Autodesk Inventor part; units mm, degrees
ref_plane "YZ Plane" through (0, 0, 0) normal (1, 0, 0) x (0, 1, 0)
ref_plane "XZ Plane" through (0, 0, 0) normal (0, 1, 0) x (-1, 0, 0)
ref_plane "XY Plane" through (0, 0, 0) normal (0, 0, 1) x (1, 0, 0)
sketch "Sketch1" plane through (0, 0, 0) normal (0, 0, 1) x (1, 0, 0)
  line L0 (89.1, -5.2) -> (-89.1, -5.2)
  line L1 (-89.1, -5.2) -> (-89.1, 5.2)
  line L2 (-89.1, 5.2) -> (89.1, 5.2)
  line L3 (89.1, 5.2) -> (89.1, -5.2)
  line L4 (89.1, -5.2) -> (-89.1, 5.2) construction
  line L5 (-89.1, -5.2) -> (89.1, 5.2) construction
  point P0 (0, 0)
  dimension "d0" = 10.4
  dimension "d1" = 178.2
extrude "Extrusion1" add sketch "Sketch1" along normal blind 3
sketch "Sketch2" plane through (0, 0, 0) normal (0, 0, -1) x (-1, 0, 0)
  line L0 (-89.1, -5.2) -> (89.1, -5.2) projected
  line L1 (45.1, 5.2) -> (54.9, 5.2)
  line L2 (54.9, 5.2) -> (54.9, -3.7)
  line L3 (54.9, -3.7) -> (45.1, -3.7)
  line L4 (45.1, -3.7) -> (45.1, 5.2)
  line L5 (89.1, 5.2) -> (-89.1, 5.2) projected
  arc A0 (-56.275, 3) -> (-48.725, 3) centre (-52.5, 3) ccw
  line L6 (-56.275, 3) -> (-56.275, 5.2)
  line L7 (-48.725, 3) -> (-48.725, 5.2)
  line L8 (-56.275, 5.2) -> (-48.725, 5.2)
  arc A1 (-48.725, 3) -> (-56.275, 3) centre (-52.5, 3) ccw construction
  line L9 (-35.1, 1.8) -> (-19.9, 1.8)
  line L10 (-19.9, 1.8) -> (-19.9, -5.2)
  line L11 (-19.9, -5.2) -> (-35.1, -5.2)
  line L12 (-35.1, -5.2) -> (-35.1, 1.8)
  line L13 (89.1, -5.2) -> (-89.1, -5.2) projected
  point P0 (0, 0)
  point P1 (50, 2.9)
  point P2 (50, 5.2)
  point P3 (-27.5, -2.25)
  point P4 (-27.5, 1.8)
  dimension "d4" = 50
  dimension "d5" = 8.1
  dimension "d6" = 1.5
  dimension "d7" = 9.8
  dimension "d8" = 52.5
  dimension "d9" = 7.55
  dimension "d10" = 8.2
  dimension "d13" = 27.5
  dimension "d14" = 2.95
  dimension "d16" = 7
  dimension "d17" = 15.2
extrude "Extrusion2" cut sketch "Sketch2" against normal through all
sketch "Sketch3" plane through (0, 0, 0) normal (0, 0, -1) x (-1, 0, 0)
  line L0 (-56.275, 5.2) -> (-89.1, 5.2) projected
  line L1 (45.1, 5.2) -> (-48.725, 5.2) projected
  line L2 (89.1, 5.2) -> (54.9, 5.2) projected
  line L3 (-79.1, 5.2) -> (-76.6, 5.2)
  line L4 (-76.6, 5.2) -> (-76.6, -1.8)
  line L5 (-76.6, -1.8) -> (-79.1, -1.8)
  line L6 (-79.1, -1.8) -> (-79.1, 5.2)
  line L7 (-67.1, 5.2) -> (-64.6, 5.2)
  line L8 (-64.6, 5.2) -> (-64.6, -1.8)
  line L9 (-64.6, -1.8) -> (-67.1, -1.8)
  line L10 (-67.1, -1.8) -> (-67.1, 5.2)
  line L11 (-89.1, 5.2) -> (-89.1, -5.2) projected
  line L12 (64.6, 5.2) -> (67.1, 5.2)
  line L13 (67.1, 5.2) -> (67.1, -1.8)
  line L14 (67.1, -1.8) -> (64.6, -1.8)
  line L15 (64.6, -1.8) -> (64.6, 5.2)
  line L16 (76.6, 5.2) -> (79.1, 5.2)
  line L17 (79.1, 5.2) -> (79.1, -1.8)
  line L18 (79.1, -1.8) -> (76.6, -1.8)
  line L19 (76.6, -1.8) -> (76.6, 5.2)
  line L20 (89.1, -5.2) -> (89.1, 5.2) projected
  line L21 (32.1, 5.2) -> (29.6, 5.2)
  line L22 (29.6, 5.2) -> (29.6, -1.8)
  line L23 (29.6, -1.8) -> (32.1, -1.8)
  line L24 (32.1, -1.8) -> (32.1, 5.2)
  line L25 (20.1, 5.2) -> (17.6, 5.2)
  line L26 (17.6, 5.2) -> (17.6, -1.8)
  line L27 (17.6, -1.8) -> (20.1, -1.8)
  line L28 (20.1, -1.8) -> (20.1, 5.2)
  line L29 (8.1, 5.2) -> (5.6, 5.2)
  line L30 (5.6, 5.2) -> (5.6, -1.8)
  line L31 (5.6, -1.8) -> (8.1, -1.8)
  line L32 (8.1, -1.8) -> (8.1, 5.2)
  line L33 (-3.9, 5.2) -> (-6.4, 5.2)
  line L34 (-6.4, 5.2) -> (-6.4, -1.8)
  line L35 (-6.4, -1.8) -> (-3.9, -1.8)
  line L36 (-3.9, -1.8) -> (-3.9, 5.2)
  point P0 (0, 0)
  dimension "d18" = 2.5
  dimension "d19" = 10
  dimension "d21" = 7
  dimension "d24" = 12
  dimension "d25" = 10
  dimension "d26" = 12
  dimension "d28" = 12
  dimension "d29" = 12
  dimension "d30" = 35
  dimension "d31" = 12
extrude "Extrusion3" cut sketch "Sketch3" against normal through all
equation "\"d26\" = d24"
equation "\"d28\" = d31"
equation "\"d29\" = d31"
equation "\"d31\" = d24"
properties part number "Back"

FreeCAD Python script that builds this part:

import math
import FreeCAD as App
import Part
import Sketcher
Q = App.Units.Quantity

doc = App.newDocument("Part")
body = doc.addObject("PartDesign::Body", "Body")

sketch1 = doc.addObject("Sketcher::SketchObject", "Sketch")
body.addObject(sketch1)
sketch1.AttachmentSupport = (doc.XY_Plane, [""])
sketch1.MapMode = "FlatFace"
sketch1.addGeometry(Part.LineSegment(App.Vector(-89.1, -5.2, 0), App.Vector(89.1, -5.2, 0)), False)
sketch1.addGeometry(Part.LineSegment(App.Vector(89.1, -5.2, 0), App.Vector(89.1, 5.2, 0)), False)
sketch1.addGeometry(Part.LineSegment(App.Vector(89.1, 5.2, 0), App.Vector(-89.1, 5.2, 0)), False)
sketch1.addGeometry(Part.LineSegment(App.Vector(-89.1, 5.2, 0), App.Vector(-89.1, -5.2, 0)), False)
sketch1.addConstraint(Sketcher.Constraint("Coincident", 0, 2, 1, 1))
sketch1.addConstraint(Sketcher.Constraint("Coincident", 1, 2, 2, 1))
sketch1.addConstraint(Sketcher.Constraint("Coincident", 2, 2, 3, 1))
sketch1.addConstraint(Sketcher.Constraint("Coincident", 3, 2, 0, 1))
sketch1.addConstraint(Sketcher.Constraint("Horizontal", 0))
sketch1.addConstraint(Sketcher.Constraint("Vertical", 1))
sketch1.addConstraint(Sketcher.Constraint("Horizontal", 2))
sketch1.addConstraint(Sketcher.Constraint("Vertical", 3))
sketch1.addConstraint(Sketcher.Constraint("Symmetric", 0, 2, 2, 2, -1, 1))
sketch1.addConstraint(Sketcher.Constraint("DistanceX", 0, 1, 0, 2, Q("178.2 mm")))
sketch1.addConstraint(Sketcher.Constraint("DistanceY", 1, 1, 1, 2, Q("10.4 mm")))
pad1 = doc.addObject("PartDesign::Pad", "Pad")
body.addObject(pad1)
pad1.Profile = sketch1
pad1.Length = 3

sketch2 = doc.addObject("Sketcher::SketchObject", "Sketch001")
body.addObject(sketch2)
sketch2.AttachmentSupport = (doc.XY_Plane, [""])
sketch2.MapMode = "FlatFace"
sketch2.addGeometry(Part.LineSegment(App.Vector(35.1, 1.8, 0), App.Vector(35.1, -5.2, 0)), False)
sketch2.addGeometry(Part.LineSegment(App.Vector(35.1, -5.2, 0), App.Vector(19.9, -5.2, 0)), False)
sketch2.addGeometry(Part.LineSegment(App.Vector(19.9, -5.2, 0), App.Vector(19.9, 1.8, 0)), False)
sketch2.addGeometry(Part.LineSegment(App.Vector(19.9, 1.8, 0), App.Vector(35.1, 1.8, 0)), False)
sketch2.addGeometry(Part.LineSegment(App.Vector(-54.9, 5.2, 0), App.Vector(-45.1, 5.2, 0)), False)
sketch2.addGeometry(Part.LineSegment(App.Vector(-45.1, 5.2, 0), App.Vector(-45.1, -3.7, 0)), False)
sketch2.addGeometry(Part.LineSegment(App.Vector(-45.1, -3.7, 0), App.Vector(-54.9, -3.7, 0)), False)
sketch2.addGeometry(Part.LineSegment(App.Vector(-54.9, -3.7, 0), App.Vector(-54.9, 5.2, 0)), False)
sketch2.addGeometry(Part.LineSegment(App.Vector(48.725, 3, 0), App.Vector(48.725, 5.2, 0)), False)
sketch2.addGeometry(Part.LineSegment(App.Vector(48.725, 5.2, 0), App.Vector(56.275, 5.2, 0)), False)
sketch2.addGeometry(Part.LineSegment(App.Vector(56.275, 5.2, 0), App.Vector(56.275, 3, 0)), False)
sketch2.addGeometry(Part.ArcOfCircle(Part.Circle(App.Vector(52.5, 3, 0), App.Vector(0, 0, 1), 3.775), math.radians(180), math.radians(360)), False)
sketch2.addConstraint(Sketcher.Constraint("Coincident", 0, 2, 1, 1))
sketch2.addConstraint(Sketcher.Constraint("Coincident", 1, 2, 2, 1))
sketch2.addConstraint(Sketcher.Constraint("Coincident", 2, 2, 3, 1))
sketch2.addConstraint(Sketcher.Constraint("Coincident", 3, 2, 0, 1))
sketch2.addConstraint(Sketcher.Constraint("Coincident", 4, 2, 5, 1))
sketch2.addConstraint(Sketcher.Constraint("Coincident", 5, 2, 6, 1))
sketch2.addConstraint(Sketcher.Constraint("Coincident", 6, 2, 7, 1))
sketch2.addConstraint(Sketcher.Constraint("Coincident", 7, 2, 4, 1))
sketch2.addConstraint(Sketcher.Constraint("Coincident", 8, 2, 9, 1))
sketch2.addConstraint(Sketcher.Constraint("Coincident", 9, 2, 10, 1))
sketch2.addConstraint(Sketcher.Constraint("Tangent", 10, 2, 11, 2))
sketch2.addConstraint(Sketcher.Constraint("Tangent", 11, 1, 8, 1))
sketch2.addConstraint(Sketcher.Constraint("Vertical", 0))
sketch2.addConstraint(Sketcher.Constraint("Horizontal", 1))
sketch2.addConstraint(Sketcher.Constraint("Vertical", 2))
sketch2.addConstraint(Sketcher.Constraint("Horizontal", 3))
sketch2.addConstraint(Sketcher.Constraint("Horizontal", 4))
sketch2.addConstraint(Sketcher.Constraint("Vertical", 5))
sketch2.addConstraint(Sketcher.Constraint("Horizontal", 6))
sketch2.addConstraint(Sketcher.Constraint("Vertical", 7))
sketch2.addConstraint(Sketcher.Constraint("Vertical", 8))
sketch2.addConstraint(Sketcher.Constraint("Horizontal", 9))
sketch2.addConstraint(Sketcher.Constraint("Vertical", 10))
sketch2.addConstraint(Sketcher.Constraint("Horizontal", 7, 2, 8, 2))
sketch2.addConstraint(Sketcher.Constraint("DistanceY", 0, 2, 0, 1, Q("7 mm")))
sketch2.addConstraint(Sketcher.Constraint("DistanceX", 1, 2, 1, 1, Q("15.2 mm")))
sketch2.addConstraint(Sketcher.Constraint("DistanceX", 4, 1, 4, 2, Q("9.8 mm")))
sketch2.addConstraint(Sketcher.Constraint("Radius", 11, Q("3.775 mm")))
sketch2.addConstraint(Sketcher.Constraint("DistanceX", -1, 1, 11, 3, Q("52.5 mm")))
sketch2.addConstraint(Sketcher.Constraint("DistanceY", 0, 2, 11, 3, Q("8.2 mm")))
sketch2.addConstraint(Sketcher.Constraint("DistanceY", 1, 2, 5, 2, Q("1.5 mm")))
sketch2.addConstraint(Sketcher.Constraint("DistanceY", 5, 2, 5, 1, Q("8.9 mm")))
sketch2.addConstraint(Sketcher.Constraint("DistanceY", -1, 1, 11, 3, Q("3 mm")))
sketch2.addConstraint(Sketcher.Constraint("DistanceX", 4, 2, 2, 2, Q("65 mm")))
sketch2.addConstraint(Sketcher.Constraint("DistanceX", -1, 1, 0, 2, Q("35.1 mm")))
pocket1 = doc.addObject("PartDesign::Pocket", "Pocket")
body.addObject(pocket1)
pocket1.Profile = sketch2
pocket1.Type = "ThroughAll"
pocket1.Reversed = True

sketch3 = doc.addObject("Sketcher::SketchObject", "Sketch002")
body.addObject(sketch3)
sketch3.AttachmentSupport = (doc.XY_Plane, [""])
sketch3.MapMode = "FlatFace"
sketch3.addGeometry(Part.LineSegment(App.Vector(64.6, -1.8, 0), App.Vector(64.6, 5.2, 0)), False)
sketch3.addGeometry(Part.LineSegment(App.Vector(64.6, 5.2, 0), App.Vector(67.1, 5.2, 0)), False)
sketch3.addGeometry(Part.LineSegment(App.Vector(67.1, 5.2, 0), App.Vector(67.1, -1.8, 0)), False)
sketch3.addGeometry(Part.LineSegment(App.Vector(67.1, -1.8, 0), App.Vector(64.6, -1.8, 0)), False)
sketch3.addGeometry(Part.LineSegment(App.Vector(76.6, -1.8, 0), App.Vector(76.6, 5.2, 0)), False)
sketch3.addGeometry(Part.LineSegment(App.Vector(76.6, 5.2, 0), App.Vector(79.1, 5.2, 0)), False)
sketch3.addGeometry(Part.LineSegment(App.Vector(79.1, 5.2, 0), App.Vector(79.1, -1.8, 0)), False)
sketch3.addGeometry(Part.LineSegment(App.Vector(79.1, -1.8, 0), App.Vector(76.6, -1.8, 0)), False)
sketch3.addGeometry(Part.LineSegment(App.Vector(-32.1, -1.8, 0), App.Vector(-32.1, 5.2, 0)), False)
sketch3.addGeometry(Part.LineSegment(App.Vector(-32.1, 5.2, 0), App.Vector(-29.6, 5.2, 0)), False)
sketch3.addGeometry(Part.LineSegment(App.Vector(-29.6, 5.2, 0), App.Vector(-29.6, -1.8, 0)), False)
sketch3.addGeometry(Part.LineSegment(App.Vector(-29.6, -1.8, 0), App.Vector(-32.1, -1.8, 0)), False)
sketch3.addGeometry(Part.LineSegment(App.Vector(3.9, -1.8, 0), App.Vector(3.9, 5.2, 0)), False)
sketch3.addGeometry(Part.LineSegment(App.Vector(3.9, 5.2, 0), App.Vector(6.4, 5.2, 0)), False)
sketch3.addGeometry(Part.LineSegment(App.Vector(6.4, 5.2, 0), App.Vector(6.4, -1.8, 0)), False)
sketch3.addGeometry(Part.LineSegment(App.Vector(6.4, -1.8, 0), App.Vector(3.9, -1.8, 0)), False)
sketch3.addGeometry(Part.LineSegment(App.Vector(-8.1, -1.8, 0), App.Vector(-8.1, 5.2, 0)), False)
sketch3.addGeometry(Part.LineSegment(App.Vector(-8.1, 5.2, 0), App.Vector(-5.6, 5.2, 0)), False)
sketch3.addGeometry(Part.LineSegment(App.Vector(-5.6, 5.2, 0), App.Vector(-5.6, -1.8, 0)), False)
sketch3.addGeometry(Part.LineSegment(App.Vector(-5.6, -1.8, 0), App.Vector(-8.1, -1.8, 0)), False)
sketch3.addGeometry(Part.LineSegment(App.Vector(-20.1, -1.8, 0), App.Vector(-20.1, 5.2, 0)), False)
sketch3.addGeometry(Part.LineSegment(App.Vector(-20.1, 5.2, 0), App.Vector(-17.6, 5.2, 0)), False)
sketch3.addGeometry(Part.LineSegment(App.Vector(-17.6, 5.2, 0), App.Vector(-17.6, -1.8, 0)), False)
sketch3.addGeometry(Part.LineSegment(App.Vector(-17.6, -1.8, 0), App.Vector(-20.1, -1.8, 0)), False)
sketch3.addGeometry(Part.LineSegment(App.Vector(-79.1, -1.8, 0), App.Vector(-79.1, 5.2, 0)), False)
sketch3.addGeometry(Part.LineSegment(App.Vector(-79.1, 5.2, 0), App.Vector(-76.6, 5.2, 0)), False)
sketch3.addGeometry(Part.LineSegment(App.Vector(-76.6, 5.2, 0), App.Vector(-76.6, -1.8, 0)), False)
sketch3.addGeometry(Part.LineSegment(App.Vector(-76.6, -1.8, 0), App.Vector(-79.1, -1.8, 0)), False)
sketch3.addGeometry(Part.LineSegment(App.Vector(-67.1, -1.8, 0), App.Vector(-67.1, 5.2, 0)), False)
sketch3.addGeometry(Part.LineSegment(App.Vector(-67.1, 5.2, 0), App.Vector(-64.6, 5.2, 0)), False)
sketch3.addGeometry(Part.LineSegment(App.Vector(-64.6, 5.2, 0), App.Vector(-64.6, -1.8, 0)), False)
sketch3.addGeometry(Part.LineSegment(App.Vector(-64.6, -1.8, 0), App.Vector(-67.1, -1.8, 0)), False)
sketch3.addConstraint(Sketcher.Constraint("Coincident", 0, 2, 1, 1))
sketch3.addConstraint(Sketcher.Constraint("Coincident", 1, 2, 2, 1))
sketch3.addConstraint(Sketcher.Constraint("Coincident", 2, 2, 3, 1))
sketch3.addConstraint(Sketcher.Constraint("Coincident", 3, 2, 0, 1))
sketch3.addConstraint(Sketcher.Constraint("Coincident", 4, 2, 5, 1))
sketch3.addConstraint(Sketcher.Constraint("Coincident", 5, 2, 6, 1))
sketch3.addConstraint(Sketcher.Constraint("Coincident", 6, 2, 7, 1))
sketch3.addConstraint(Sketcher.Constraint("Coincident", 7, 2, 4, 1))
sketch3.addConstraint(Sketcher.Constraint("Coincident", 8, 2, 9, 1))
sketch3.addConstraint(Sketcher.Constraint("Coincident", 9, 2, 10, 1))
sketch3.addConstraint(Sketcher.Constraint("Coincident", 10, 2, 11, 1))
sketch3.addConstraint(Sketcher.Constraint("Coincident", 11, 2, 8, 1))
sketch3.addConstraint(Sketcher.Constraint("Coincident", 12, 2, 13, 1))
sketch3.addConstraint(Sketcher.Constraint("Coincident", 13, 2, 14, 1))
sketch3.addConstraint(Sketcher.Constraint("Coincident", 14, 2, 15, 1))
sketch3.addConstraint(Sketcher.Constraint("Coincident", 15, 2, 12, 1))
sketch3.addConstraint(Sketcher.Constraint("Coincident", 16, 2, 17, 1))
sketch3.addConstraint(Sketcher.Constraint("Coincident", 17, 2, 18, 1))
sketch3.addConstraint(Sketcher.Constraint("Coincident", 18, 2, 19, 1))
sketch3.addConstraint(Sketcher.Constraint("Coincident", 19, 2, 16, 1))
sketch3.addConstraint(Sketcher.Constraint("Coincident", 20, 2, 21, 1))
sketch3.addConstraint(Sketcher.Constraint("Coincident", 21, 2, 22, 1))
sketch3.addConstraint(Sketcher.Constraint("Coincident", 22, 2, 23, 1))
sketch3.addConstraint(Sketcher.Constraint("Coincident", 23, 2, 20, 1))
sketch3.addConstraint(Sketcher.Constraint("Coincident", 24, 2, 25, 1))
sketch3.addConstraint(Sketcher.Constraint("Coincident", 25, 2, 26, 1))
sketch3.addConstraint(Sketcher.Constraint("Coincident", 26, 2, 27, 1))
sketch3.addConstraint(Sketcher.Constraint("Coincident", 27, 2, 24, 1))
sketch3.addConstraint(Sketcher.Constraint("Coincident", 28, 2, 29, 1))
sketch3.addConstraint(Sketcher.Constraint("Coincident", 29, 2, 30, 1))
sketch3.addConstraint(Sketcher.Constraint("Coincident", 30, 2, 31, 1))
sketch3.addConstraint(Sketcher.Constraint("Coincident", 31, 2, 28, 1))
sketch3.addConstraint(Sketcher.Constraint("Vertical", 0))
sketch3.addConstraint(Sketcher.Constraint("Horizontal", 1))
sketch3.addConstraint(Sketcher.Constraint("Vertical", 2))
sketch3.addConstraint(Sketcher.Constraint("Horizontal", 3))
sketch3.addConstraint(Sketcher.Constraint("Vertical", 4))
sketch3.addConstraint(Sketcher.Constraint("Horizontal", 5))
sketch3.addConstraint(Sketcher.Constraint("Vertical", 6))
sketch3.addConstraint(Sketcher.Constraint("Horizontal", 7))
sketch3.addConstraint(Sketcher.Constraint("Vertical", 8))
sketch3.addConstraint(Sketcher.Constraint("Horizontal", 9))
sketch3.addConstraint(Sketcher.Constraint("Vertical", 10))
sketch3.addConstraint(Sketcher.Constraint("Horizontal", 11))
sketch3.addConstraint(Sketcher.Constraint("Vertical", 12))
sketch3.addConstraint(Sketcher.Constraint("Horizontal", 13))
sketch3.addConstraint(Sketcher.Constraint("Vertical", 14))
sketch3.addConstraint(Sketcher.Constraint("Horizontal", 15))
sketch3.addConstraint(Sketcher.Constraint("Vertical", 16))
sketch3.addConstraint(Sketcher.Constraint("Horizontal", 17))
sketch3.addConstraint(Sketcher.Constraint("Vertical", 18))
sketch3.addConstraint(Sketcher.Constraint("Horizontal", 19))
sketch3.addConstraint(Sketcher.Constraint("Vertical", 20))
sketch3.addConstraint(Sketcher.Constraint("Horizontal", 21))
sketch3.addConstraint(Sketcher.Constraint("Vertical", 22))
sketch3.addConstraint(Sketcher.Constraint("Horizontal", 23))
sketch3.addConstraint(Sketcher.Constraint("Vertical", 24))
sketch3.addConstraint(Sketcher.Constraint("Horizontal", 25))
sketch3.addConstraint(Sketcher.Constraint("Vertical", 26))
sketch3.addConstraint(Sketcher.Constraint("Horizontal", 27))
sketch3.addConstraint(Sketcher.Constraint("Vertical", 28))
sketch3.addConstraint(Sketcher.Constraint("Horizontal", 29))
sketch3.addConstraint(Sketcher.Constraint("Vertical", 30))
sketch3.addConstraint(Sketcher.Constraint("Horizontal", 31))
sketch3.addConstraint(Sketcher.Constraint("Symmetric", 5, 2, 24, 2, -2))
sketch3.addConstraint(Sketcher.Constraint("Symmetric", 7, 2, 26, 2, -2))
sketch3.addConstraint(Sketcher.Constraint("Symmetric", 1, 2, 28, 2, -2))
sketch3.addConstraint(Sketcher.Constraint("Symmetric", 3, 2, 30, 2, -2))
sketch3.addConstraint(Sketcher.Constraint("Horizontal", 1, 2, 4, 2))
sketch3.addConstraint(Sketcher.Constraint("Horizontal", 3, 2, 6, 2))
sketch3.addConstraint(Sketcher.Constraint("Horizontal", 5, 2, 8, 2))
sketch3.addConstraint(Sketcher.Constraint("Horizontal", 7, 2, 10, 2))
sketch3.addConstraint(Sketcher.Constraint("Horizontal", 9, 2, 12, 2))
sketch3.addConstraint(Sketcher.Constraint("Horizontal", 11, 2, 14, 2))
sketch3.addConstraint(Sketcher.Constraint("Horizontal", 13, 2, 16, 2))
sketch3.addConstraint(Sketcher.Constraint("Horizontal", 15, 2, 18, 2))
sketch3.addConstraint(Sketcher.Constraint("Horizontal", 17, 2, 20, 2))
sketch3.addConstraint(Sketcher.Constraint("Horizontal", 19, 2, 22, 2))
sketch3.addConstraint(Sketcher.Constraint("Equal", 3, 5))
sketch3.addConstraint(Sketcher.Constraint("Equal", 7, 9))
sketch3.addConstraint(Sketcher.Constraint("Equal", 11, 13))
sketch3.addConstraint(Sketcher.Constraint("Equal", 15, 17))
sketch3.addConstraint(Sketcher.Constraint("Equal", 19, 21))
sketch3.addConstraint(Sketcher.Constraint("DistanceY", 0, 1, 0, 2, Q("7 mm")))
sketch3.addConstraint(Sketcher.Constraint("DistanceX", 1, 1, 1, 2, Q("2.5 mm")))
sketch3.addConstraint(Sketcher.Constraint("DistanceX", 0, 2, 4, 2, Q("12 mm")))
sketch3.addConstraint(Sketcher.Constraint("DistanceX", 16, 2, 12, 2, Q("12 mm")))
sketch3.addConstraint(Sketcher.Constraint("DistanceX", 8, 2, 20, 2, Q("12 mm")))
sketch3.addConstraint(Sketcher.Constraint("DistanceX", 20, 2, 16, 2, Q("12 mm")))
sketch3.addConstraint(Sketcher.Constraint("DistanceX", 28, 2, 8, 2, Q("35 mm")))
sketch3.addConstraint(Sketcher.Constraint("DistanceX", -1, 1, 0, 2, Q("64.6 mm")))
sketch3.addConstraint(Sketcher.Constraint("DistanceY", -1, 1, 0, 2, Q("5.2 mm")))
pocket2 = doc.addObject("PartDesign::Pocket", "Pocket001")
body.addObject(pocket2)
pocket2.Profile = sketch3
pocket2.Type = "ThroughAll"
pocket2.Reversed = True

doc.recompute()
